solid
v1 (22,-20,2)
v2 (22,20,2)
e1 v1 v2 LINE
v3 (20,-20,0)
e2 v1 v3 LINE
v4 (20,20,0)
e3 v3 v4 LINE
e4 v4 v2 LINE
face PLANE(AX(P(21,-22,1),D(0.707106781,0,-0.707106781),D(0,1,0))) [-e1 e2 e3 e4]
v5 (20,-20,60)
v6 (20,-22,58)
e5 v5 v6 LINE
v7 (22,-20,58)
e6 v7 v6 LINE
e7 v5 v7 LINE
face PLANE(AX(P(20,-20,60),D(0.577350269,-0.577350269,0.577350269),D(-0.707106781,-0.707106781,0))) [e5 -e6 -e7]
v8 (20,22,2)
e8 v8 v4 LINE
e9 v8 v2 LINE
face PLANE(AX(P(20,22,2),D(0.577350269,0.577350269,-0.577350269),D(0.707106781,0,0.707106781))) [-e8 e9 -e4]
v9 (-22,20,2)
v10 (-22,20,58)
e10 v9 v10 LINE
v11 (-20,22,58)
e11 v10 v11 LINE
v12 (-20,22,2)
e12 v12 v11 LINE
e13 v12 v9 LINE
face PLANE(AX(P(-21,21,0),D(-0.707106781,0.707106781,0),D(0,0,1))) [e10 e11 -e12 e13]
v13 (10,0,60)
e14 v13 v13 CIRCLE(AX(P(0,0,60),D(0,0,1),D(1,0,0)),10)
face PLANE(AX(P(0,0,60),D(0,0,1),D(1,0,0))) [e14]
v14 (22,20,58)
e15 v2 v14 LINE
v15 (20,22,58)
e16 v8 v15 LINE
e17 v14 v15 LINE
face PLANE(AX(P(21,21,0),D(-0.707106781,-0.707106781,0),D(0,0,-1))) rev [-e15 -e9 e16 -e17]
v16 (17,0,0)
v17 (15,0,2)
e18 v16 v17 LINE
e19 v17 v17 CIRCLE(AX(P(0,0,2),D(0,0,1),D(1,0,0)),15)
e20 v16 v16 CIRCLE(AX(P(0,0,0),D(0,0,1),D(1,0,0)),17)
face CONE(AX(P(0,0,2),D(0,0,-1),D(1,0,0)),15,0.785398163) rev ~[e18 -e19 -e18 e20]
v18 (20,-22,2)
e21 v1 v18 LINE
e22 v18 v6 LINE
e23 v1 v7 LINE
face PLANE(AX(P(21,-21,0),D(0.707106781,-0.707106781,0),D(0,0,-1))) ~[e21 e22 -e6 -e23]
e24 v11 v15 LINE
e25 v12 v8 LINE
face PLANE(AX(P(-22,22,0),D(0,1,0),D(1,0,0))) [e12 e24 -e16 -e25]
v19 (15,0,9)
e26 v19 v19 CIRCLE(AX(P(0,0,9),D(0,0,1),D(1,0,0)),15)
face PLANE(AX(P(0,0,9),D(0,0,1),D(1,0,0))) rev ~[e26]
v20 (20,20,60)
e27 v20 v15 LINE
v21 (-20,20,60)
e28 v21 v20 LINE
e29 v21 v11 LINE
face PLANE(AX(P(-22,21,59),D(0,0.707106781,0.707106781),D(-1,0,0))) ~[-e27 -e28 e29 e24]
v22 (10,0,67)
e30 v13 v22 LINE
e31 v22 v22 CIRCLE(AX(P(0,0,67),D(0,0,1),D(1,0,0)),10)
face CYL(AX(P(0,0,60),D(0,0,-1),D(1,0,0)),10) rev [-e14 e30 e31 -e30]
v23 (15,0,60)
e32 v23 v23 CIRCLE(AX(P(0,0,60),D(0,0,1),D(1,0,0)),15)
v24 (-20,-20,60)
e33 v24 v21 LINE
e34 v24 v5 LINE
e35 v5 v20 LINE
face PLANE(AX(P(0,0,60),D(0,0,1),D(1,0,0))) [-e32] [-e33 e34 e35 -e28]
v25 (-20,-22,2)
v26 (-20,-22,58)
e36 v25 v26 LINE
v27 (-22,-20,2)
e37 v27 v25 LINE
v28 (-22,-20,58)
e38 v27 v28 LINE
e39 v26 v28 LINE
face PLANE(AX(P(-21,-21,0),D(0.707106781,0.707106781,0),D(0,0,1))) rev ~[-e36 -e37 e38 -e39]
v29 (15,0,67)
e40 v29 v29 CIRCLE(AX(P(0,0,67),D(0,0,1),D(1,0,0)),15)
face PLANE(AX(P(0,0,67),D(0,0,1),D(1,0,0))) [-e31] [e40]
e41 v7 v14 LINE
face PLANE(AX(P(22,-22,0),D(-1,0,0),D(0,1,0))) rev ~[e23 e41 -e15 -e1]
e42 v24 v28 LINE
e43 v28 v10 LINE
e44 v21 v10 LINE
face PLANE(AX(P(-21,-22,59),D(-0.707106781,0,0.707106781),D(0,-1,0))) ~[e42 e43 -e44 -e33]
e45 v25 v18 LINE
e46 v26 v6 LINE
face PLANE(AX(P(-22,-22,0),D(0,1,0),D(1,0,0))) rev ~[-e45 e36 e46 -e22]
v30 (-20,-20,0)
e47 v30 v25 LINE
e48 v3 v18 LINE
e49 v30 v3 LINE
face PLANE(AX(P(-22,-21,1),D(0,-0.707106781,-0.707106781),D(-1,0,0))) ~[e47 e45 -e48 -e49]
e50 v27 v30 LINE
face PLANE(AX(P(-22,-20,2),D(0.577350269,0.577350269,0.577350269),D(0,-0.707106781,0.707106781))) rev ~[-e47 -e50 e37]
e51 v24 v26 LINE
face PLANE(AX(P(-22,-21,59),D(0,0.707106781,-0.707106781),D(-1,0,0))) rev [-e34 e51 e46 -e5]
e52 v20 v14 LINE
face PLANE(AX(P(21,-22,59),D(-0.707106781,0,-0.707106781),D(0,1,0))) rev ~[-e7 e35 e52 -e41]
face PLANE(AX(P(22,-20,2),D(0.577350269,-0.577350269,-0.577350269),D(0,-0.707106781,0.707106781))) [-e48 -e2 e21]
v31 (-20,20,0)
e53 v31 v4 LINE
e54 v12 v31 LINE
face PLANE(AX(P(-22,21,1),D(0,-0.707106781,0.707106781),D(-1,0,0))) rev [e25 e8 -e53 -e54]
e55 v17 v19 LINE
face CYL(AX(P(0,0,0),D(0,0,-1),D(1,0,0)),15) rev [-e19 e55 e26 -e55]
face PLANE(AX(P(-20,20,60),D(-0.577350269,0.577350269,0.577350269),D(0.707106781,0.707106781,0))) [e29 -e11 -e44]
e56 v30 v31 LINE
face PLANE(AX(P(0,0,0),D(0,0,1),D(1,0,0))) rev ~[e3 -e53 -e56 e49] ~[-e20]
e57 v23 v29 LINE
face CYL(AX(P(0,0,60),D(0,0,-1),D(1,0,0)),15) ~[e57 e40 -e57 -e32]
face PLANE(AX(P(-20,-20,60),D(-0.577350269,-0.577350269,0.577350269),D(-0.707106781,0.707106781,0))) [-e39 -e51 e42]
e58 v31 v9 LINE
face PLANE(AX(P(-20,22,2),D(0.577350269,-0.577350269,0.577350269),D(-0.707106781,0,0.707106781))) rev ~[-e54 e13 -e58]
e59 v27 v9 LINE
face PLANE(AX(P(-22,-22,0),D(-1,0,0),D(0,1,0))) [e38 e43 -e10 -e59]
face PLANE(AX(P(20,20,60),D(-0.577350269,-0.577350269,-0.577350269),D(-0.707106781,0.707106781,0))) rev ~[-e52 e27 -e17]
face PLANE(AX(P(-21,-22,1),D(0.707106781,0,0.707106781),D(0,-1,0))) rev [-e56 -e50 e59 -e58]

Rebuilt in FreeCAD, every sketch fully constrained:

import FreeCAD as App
import Part
import Sketcher

V = App.Vector


def edges_at(feature, points):
    """Names of the edges that pass closest to the given points."""
    edges = feature.Shape.Edges
    near = lambda p: min(range(len(edges)), key=lambda i: edges[i].distToShape(Part.Vertex(*p))[0])
    return sorted({f"Edge{near(p) + 1}" for p in points})


def add_polygon(sketch, points):
    """Adds a closed chain of lines whose ends are joined by coincident constraints."""
    first, n = sketch.GeometryCount, len(points)
    for a, b in zip(points, points[1:] + points[:1]):
        sketch.addGeometry(Part.LineSegment(App.Vector(*a, 0), App.Vector(*b, 0)), False)
    for i in range(n):
        sketch.addConstraint(Sketcher.Constraint("Coincident", first + i, 2, first + (i + 1) % n, 1))

doc = App.newDocument("Part")
body = doc.addObject("PartDesign::Body", "Body")

# Sketch on XY plane
sketch1 = body.newObject("Sketcher::SketchObject", "Sketch")
sketch1.AttachmentSupport = (doc.getObject("XY_Plane"), [""])
sketch1.MapMode = "FlatFace"
add_polygon(sketch1, [(-22, 22), (-22, -22), (22, -22), (22, 22)])  # lines 0-3
sketch1.addConstraint([
    Sketcher.Constraint("Vertical", 0),
    Sketcher.Constraint("Horizontal", 1),
    Sketcher.Constraint("Vertical", 2),
    Sketcher.Constraint("Horizontal", 3),
    Sketcher.Constraint("Symmetric", 0, 2, 2, 2, -1, 1),
    Sketcher.Constraint("Equal", 3, 0),
    Sketcher.Constraint("DistanceX", 1, 1, 1, 2, 44.0),
])
pad1 = body.newObject("PartDesign::Pad", "Pad")
pad1.Profile = sketch1
pad1.Length = 60

# Sketch on XY plane
sketch2 = body.newObject("Sketcher::SketchObject", "Sketch001")
sketch2.AttachmentSupport = (doc.getObject("XY_Plane"), [""])
sketch2.MapMode = "FlatFace"
sketch2.AttachmentOffset = App.Placement(V(0, 0, 60), App.Rotation())
sketch2.addGeometry([
    Part.Circle(V(0, 0, 0), V(0, 0, 1), 15),
    Part.Circle(V(0, 0, 0), V(0, 0, 1), 10),
], False)
sketch2.addConstraint([
    Sketcher.Constraint("Coincident", 0, 3, -1, 1),
    Sketcher.Constraint("Coincident", 1, 3, -1, 1),
    Sketcher.Constraint("Diameter", 0, 30.0),
    Sketcher.Constraint("Diameter", 1, 20.0),
])
pad2 = body.newObject("PartDesign::Pad", "Pad001")
pad2.Profile = sketch2
pad2.Length = 7

# Sketch on XY plane
sketch3 = body.newObject("Sketcher::SketchObject", "Sketch002")
sketch3.AttachmentSupport = (doc.getObject("XY_Plane"), [""])
sketch3.MapMode = "FlatFace"
sketch3.addGeometry(Part.Circle(V(0, 0, 0), V(0, 0, 1), 15), False)
sketch3.addConstraint([
    Sketcher.Constraint("Coincident", 0, 3, -1, 1),
    Sketcher.Constraint("Diameter", 0, 30.0),
])
pocket1 = body.newObject("PartDesign::Pocket", "Pocket")
pocket1.Profile = sketch3
pocket1.Length = 9
pocket1.Reversed = True
doc.recompute()

chamfer = body.newObject("PartDesign::Chamfer", "Chamfer")
chamfer.Base = (pocket1, edges_at(pocket1, [
    (0, -22, 0),
    (22, 0, 0),
    (-22, 0, 0),
    (0, 22, 0),
    (-22, -22, 30),
    (-22, 22, 30),
    (22, 22, 30),
    (22, -22, 30),
    (22, 0, 60),
    (0, -22, 60),
    (-22, 0, 60),
    (0, 22, 60),
    (-15, 0, 0),
]))
chamfer.Size = 2

doc.recompute()
